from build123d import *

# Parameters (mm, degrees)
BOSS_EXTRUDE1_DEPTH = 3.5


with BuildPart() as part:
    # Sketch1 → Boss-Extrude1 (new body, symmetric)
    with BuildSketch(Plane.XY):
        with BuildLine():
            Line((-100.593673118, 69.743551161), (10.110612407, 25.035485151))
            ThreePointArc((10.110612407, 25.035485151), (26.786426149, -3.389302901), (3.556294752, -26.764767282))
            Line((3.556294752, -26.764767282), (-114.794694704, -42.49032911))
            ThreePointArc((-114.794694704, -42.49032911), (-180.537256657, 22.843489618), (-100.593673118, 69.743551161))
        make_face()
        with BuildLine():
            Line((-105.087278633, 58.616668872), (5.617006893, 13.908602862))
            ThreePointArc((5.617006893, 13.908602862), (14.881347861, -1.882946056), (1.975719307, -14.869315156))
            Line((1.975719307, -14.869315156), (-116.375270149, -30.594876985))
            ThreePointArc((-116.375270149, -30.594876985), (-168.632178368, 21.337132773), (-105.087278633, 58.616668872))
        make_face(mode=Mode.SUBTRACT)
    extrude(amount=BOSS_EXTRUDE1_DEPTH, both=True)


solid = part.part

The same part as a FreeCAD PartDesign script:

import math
import FreeCAD as App
import Part
import Sketcher
from FreeCAD import Vector

doc = App.newDocument("Part")
body = doc.addObject("PartDesign::Body", "Body")

sketch1 = body.newObject("Sketcher::SketchObject", "Sketch")
sketch1.AttachmentSupport = (doc.getObject("XY_Plane"), [""])
sketch1.MapMode = "FlatFace"
sketch1.addGeometry(Part.LineSegment(Vector(10, 25, 0), Vector(-101, 70, 0)), False)
sketch1.addGeometry(Part.ArcOfCircle(Part.Circle(Vector(-122, 16, 0), Vector(0, 0, 1), 58), math.radians(68), math.radians(278)), False)
sketch1.addGeometry(Part.LineSegment(Vector(-115, -42, 0), Vector(4, -27, 0)), False)
sketch1.addGeometry(Part.ArcOfCircle(Part.Circle(Vector(0, 0, 0), Vector(0, 0, 1), 27), math.radians(-82), math.radians(68)), False)
sketch1.addGeometry(Part.LineSegment(Vector(-105, 59, 0), Vector(6, 14, 0)), False)
sketch1.addGeometry(Part.ArcOfCircle(Part.Circle(Vector(0, 0, 0), Vector(0, 0, 1), 15), math.radians(-82), math.radians(68)), False)
sketch1.addGeometry(Part.LineSegment(Vector(2, -15, 0), Vector(-116, -31, 0)), False)
sketch1.addGeometry(Part.ArcOfCircle(Part.Circle(Vector(-122, 16, 0), Vector(0, 0, 1), 46), math.radians(68), math.radians(278)), False)
sketch1.addConstraint(Sketcher.Constraint("Tangent", 0, 2, 1, 1))
sketch1.addConstraint(Sketcher.Constraint("Tangent", 1, 2, 2, 1))
sketch1.addConstraint(Sketcher.Constraint("Tangent", 2, 2, 3, 1))
sketch1.addConstraint(Sketcher.Constraint("Tangent", 3, 2, 0, 1))
sketch1.addConstraint(Sketcher.Constraint("Tangent", 4, 2, 5, 2))
sketch1.addConstraint(Sketcher.Constraint("Tangent", 5, 1, 6, 1))
sketch1.addConstraint(Sketcher.Constraint("Tangent", 6, 2, 7, 2))
sketch1.addConstraint(Sketcher.Constraint("Tangent", 7, 1, 4, 1))
sketch1.addConstraint(Sketcher.Constraint("Coincident", 3, 3, -1, 1))
sketch1.addConstraint(Sketcher.Constraint("Coincident", 5, 3, -1, 1))
sketch1.addConstraint(Sketcher.Constraint("Coincident", 7, 3, 1, 3))
sketch1.addConstraint(Sketcher.Constraint("Parallel", 0, 4))
sketch1.addConstraint(Sketcher.Constraint("Radius", 3, 27.0))
sketch1.addConstraint(Sketcher.Constraint("Radius", 5, 15.0))
sketch1.addConstraint(Sketcher.Constraint("Radius", 1, 58.5))
sketch1.addConstraint(Sketcher.Constraint("DistanceX", 1, 3, -1, 1, 122.5))
sketch1.addConstraint(Sketcher.Constraint("DistanceY", -1, 1, 1, 3, 15.5))
pad1 = body.newObject("PartDesign::Pad", "Pad")
pad1.Profile = sketch1
pad1.Length = 7
pad1.Midplane = True

doc.recompute()
